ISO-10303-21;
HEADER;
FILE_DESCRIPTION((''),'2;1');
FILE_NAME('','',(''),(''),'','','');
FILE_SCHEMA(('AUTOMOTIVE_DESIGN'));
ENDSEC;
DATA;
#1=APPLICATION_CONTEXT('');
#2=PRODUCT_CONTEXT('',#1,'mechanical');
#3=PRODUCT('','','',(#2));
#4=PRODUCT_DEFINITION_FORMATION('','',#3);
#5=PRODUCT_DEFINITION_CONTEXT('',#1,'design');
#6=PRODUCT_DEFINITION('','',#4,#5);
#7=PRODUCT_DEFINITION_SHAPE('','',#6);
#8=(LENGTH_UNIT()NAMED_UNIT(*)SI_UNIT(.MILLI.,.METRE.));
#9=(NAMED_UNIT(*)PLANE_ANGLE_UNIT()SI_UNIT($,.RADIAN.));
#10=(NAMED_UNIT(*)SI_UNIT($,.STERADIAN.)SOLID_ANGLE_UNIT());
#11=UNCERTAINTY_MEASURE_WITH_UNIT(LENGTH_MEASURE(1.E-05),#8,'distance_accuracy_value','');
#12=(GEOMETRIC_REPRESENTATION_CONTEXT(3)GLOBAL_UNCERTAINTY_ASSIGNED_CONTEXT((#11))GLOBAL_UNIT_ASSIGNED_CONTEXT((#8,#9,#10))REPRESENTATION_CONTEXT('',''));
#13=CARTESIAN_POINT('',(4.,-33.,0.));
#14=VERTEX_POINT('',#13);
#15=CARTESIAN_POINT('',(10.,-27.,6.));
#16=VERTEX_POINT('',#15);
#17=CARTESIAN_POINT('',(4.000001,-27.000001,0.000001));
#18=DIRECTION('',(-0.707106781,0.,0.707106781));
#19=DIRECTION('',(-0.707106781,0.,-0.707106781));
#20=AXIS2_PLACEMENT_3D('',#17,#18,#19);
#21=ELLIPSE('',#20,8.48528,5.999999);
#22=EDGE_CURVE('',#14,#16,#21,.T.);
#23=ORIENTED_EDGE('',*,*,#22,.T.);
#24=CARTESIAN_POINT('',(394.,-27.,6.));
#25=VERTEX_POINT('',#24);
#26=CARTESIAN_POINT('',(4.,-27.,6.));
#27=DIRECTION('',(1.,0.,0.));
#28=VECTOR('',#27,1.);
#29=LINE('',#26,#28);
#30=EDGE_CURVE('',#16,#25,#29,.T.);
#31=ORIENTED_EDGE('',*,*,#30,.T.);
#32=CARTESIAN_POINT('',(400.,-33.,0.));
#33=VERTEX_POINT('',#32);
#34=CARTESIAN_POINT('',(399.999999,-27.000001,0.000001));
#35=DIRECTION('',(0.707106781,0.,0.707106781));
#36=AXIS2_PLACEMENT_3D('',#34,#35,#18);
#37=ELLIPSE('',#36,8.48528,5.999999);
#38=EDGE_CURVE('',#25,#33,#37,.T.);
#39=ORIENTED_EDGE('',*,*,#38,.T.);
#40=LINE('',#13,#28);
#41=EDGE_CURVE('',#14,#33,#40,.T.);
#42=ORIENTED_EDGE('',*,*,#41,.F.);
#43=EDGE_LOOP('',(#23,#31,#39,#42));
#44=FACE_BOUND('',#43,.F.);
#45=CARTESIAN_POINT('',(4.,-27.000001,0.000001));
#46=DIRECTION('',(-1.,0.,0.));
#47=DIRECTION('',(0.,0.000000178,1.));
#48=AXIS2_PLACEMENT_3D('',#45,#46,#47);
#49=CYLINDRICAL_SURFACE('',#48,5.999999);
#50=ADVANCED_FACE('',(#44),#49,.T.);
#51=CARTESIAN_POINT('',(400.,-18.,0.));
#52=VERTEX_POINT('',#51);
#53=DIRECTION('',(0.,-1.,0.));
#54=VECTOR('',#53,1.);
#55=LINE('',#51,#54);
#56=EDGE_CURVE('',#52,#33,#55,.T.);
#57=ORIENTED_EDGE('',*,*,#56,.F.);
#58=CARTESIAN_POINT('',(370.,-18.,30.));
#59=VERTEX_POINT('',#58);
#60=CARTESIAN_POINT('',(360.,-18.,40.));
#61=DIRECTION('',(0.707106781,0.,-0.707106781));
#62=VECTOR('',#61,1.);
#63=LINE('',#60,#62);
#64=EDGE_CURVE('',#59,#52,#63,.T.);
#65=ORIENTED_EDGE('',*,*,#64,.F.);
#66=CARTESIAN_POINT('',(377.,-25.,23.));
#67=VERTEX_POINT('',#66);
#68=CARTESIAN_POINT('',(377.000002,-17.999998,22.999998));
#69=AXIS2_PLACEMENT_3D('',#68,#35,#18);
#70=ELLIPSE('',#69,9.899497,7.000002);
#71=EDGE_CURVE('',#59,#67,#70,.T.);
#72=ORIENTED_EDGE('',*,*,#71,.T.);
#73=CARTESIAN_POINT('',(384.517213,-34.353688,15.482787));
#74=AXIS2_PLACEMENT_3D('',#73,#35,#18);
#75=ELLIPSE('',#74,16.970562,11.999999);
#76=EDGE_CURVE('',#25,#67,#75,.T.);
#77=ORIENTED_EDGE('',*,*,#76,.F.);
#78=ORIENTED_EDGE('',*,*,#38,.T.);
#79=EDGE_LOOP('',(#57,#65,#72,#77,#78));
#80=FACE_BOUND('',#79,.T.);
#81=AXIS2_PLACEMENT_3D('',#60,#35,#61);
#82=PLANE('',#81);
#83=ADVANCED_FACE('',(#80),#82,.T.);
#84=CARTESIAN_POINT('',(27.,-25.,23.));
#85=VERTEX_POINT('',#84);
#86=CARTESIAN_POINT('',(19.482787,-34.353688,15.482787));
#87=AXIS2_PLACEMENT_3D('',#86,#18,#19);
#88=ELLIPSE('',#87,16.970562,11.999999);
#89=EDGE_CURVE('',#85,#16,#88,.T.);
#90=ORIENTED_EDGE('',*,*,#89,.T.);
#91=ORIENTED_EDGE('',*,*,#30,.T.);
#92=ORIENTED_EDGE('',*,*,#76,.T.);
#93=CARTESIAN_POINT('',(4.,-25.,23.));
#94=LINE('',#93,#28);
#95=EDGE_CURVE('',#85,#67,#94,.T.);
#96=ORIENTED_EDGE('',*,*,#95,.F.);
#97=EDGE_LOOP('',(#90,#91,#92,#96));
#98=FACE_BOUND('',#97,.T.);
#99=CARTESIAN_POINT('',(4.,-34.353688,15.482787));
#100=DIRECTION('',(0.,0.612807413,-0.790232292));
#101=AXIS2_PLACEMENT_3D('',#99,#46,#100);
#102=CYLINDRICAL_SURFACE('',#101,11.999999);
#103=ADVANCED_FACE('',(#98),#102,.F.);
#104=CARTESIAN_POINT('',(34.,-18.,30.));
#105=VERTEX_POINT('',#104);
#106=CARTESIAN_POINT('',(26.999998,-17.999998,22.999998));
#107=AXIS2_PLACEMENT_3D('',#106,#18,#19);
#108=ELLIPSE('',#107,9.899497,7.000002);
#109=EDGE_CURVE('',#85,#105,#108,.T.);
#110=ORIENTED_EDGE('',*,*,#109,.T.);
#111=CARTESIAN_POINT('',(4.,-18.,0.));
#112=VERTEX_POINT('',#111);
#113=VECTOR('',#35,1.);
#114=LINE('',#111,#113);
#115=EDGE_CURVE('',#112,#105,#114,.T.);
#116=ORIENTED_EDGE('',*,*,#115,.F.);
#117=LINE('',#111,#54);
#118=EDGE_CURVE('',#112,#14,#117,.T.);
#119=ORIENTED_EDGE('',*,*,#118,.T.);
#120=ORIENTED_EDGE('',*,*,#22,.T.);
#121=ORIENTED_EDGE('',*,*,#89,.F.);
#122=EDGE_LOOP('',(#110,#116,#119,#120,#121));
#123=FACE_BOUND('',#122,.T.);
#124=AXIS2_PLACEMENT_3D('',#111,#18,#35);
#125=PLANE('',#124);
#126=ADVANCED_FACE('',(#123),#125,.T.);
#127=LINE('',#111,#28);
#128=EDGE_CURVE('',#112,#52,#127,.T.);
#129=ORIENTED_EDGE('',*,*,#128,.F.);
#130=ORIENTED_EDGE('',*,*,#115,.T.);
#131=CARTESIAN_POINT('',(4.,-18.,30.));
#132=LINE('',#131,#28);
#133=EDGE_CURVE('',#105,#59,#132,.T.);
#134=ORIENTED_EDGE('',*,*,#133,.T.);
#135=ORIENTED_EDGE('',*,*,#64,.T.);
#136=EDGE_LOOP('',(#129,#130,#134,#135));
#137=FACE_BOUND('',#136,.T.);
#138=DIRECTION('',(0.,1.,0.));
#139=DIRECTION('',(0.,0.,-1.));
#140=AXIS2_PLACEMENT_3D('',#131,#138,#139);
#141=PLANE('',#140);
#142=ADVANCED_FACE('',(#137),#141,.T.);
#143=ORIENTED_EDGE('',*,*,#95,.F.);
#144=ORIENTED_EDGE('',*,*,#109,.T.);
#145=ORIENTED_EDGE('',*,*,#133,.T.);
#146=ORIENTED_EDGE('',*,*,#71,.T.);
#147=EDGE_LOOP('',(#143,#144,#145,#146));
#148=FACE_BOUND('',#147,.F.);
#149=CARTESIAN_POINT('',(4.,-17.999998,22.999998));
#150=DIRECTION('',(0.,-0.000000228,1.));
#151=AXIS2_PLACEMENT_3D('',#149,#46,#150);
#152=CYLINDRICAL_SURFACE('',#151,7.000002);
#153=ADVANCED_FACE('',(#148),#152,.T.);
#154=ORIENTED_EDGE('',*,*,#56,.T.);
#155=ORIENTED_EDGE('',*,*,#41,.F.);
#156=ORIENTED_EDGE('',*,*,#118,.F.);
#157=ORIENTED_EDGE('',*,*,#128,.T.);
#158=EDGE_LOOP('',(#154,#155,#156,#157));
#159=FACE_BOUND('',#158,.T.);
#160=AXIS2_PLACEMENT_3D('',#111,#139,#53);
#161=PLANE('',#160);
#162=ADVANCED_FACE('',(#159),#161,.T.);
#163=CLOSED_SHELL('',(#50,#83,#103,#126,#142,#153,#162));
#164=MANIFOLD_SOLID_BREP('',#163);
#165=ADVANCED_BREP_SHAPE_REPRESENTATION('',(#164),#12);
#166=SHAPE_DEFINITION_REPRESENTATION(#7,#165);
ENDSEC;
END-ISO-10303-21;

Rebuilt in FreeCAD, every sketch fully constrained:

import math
import FreeCAD as App
import Part
import Sketcher


def add_polygon(sketch, points):
    """Adds a closed chain of lines whose ends are joined by coincident constraints."""
    first, n = sketch.GeometryCount, len(points)
    for a, b in zip(points, points[1:] + points[:1]):
        sketch.addGeometry(Part.LineSegment(App.Vector(*a, 0), App.Vector(*b, 0)), False)
    for i in range(n):
        sketch.addConstraint(Sketcher.Constraint("Coincident", first + i, 2, first + (i + 1) % n, 1))

doc = App.newDocument("Part")
body = doc.addObject("PartDesign::Body", "Body")

# Sketch on XZ plane
sketch1 = doc.addObject("Sketcher::SketchObject", "Sketch")
body.addObject(sketch1)
sketch1.AttachmentSupport = (doc.XZ_Plane, [""])
sketch1.MapMode = "FlatFace"
sketch1.AttachmentOffset = App.Placement(App.Vector(0, 0, 18), App.Rotation())
add_polygon(sketch1, [(360, 40), (400, 0), (400, 40)])  # lines 0-2
sketch1.addConstraint([
    Sketcher.Constraint("Vertical", 1),
    Sketcher.Constraint("Horizontal", 2),
    Sketcher.Constraint("PointOnObject", 0, 2, -1),
    Sketcher.Constraint("Equal", 2, 1),
    Sketcher.Constraint("DistanceX", 2, 2, 2, 1, 40.0),
    Sketcher.Constraint("DistanceX", -1, 1, 0, 2, 400.0),
])
pad1 = doc.addObject("PartDesign::Pad", "Pad")
body.addObject(pad1)
pad1.Profile = sketch1
pad1.Length = 40
body2 = doc.addObject("PartDesign::Body", "Body001")

# Sketch on XZ plane
sketch2 = doc.addObject("Sketcher::SketchObject", "Sketch001")
body2.addObject(sketch2)
sketch2.AttachmentSupport = (doc.getObject("XZ_Plane001"), [""])
sketch2.MapMode = "FlatFace"
sketch2.AttachmentOffset = App.Placement(App.Vector(0, 0, 18), App.Rotation())
add_polygon(sketch2, [(4, 0), (44, 40), (4, 40)])  # lines 0-2
sketch2.addConstraint([
    Sketcher.Constraint("Horizontal", 1),
    Sketcher.Constraint("Vertical", 2),
    Sketcher.Constraint("PointOnObject", 2, 2, -1),
    Sketcher.Constraint("Equal", 1, 2),
    Sketcher.Constraint("DistanceX", 1, 2, 1, 1, 40.0),
    Sketcher.Constraint("DistanceX", -1, 1, 0, 2, 44.0),
])
pad2 = doc.addObject("PartDesign::Pad", "Pad001")
body2.addObject(pad2)
pad2.Profile = sketch2
pad2.Length = 40
body3 = doc.addObject("PartDesign::Body", "Body002")

# Sketch on YZ plane
sketch3 = doc.addObject("Sketcher::SketchObject", "Sketch002")
body3.addObject(sketch3)
sketch3.AttachmentSupport = (doc.getObject("YZ_Plane002"), [""])
sketch3.MapMode = "FlatFace"
sketch3.AttachmentOffset = App.Placement(App.Vector(0, 0, 4), App.Rotation())
sketch3.addGeometry([
    Part.LineSegment(App.Vector(-18, 0, 0), App.Vector(-18, 30, 0)),  # 0
    Part.ArcOfCircle(Part.Circle(App.Vector(-18, 23, 0), App.Vector(0, 0, 1), 7), math.radians(90), math.radians(180)),  # 1
    Part.ArcOfCircle(Part.Circle(App.Vector(-34, 15, 0), App.Vector(0, 0, 1), 12), math.radians(-52), math.radians(39)),  # 2
    Part.ArcOfCircle(Part.Circle(App.Vector(-27, 0, 0), App.Vector(0, 0, 1), 6), math.radians(90), math.radians(180)),  # 3
    Part.LineSegment(App.Vector(-33, 0, 0), App.Vector(-18, 0, 0)),  # 4
], False)
sketch3.addConstraint([
    Sketcher.Constraint("Coincident", 0, 2, 1, 1),
    Sketcher.Constraint("Coincident", 1, 2, 2, 2),
    Sketcher.Constraint("Coincident", 2, 1, 3, 1),
    Sketcher.Constraint("Coincident", 3, 2, 4, 1),
    Sketcher.Constraint("Coincident", 4, 2, 0, 1),
    Sketcher.Constraint("Vertical", 0),
    Sketcher.Constraint("Horizontal", 4),
    Sketcher.Constraint("PointOnObject", 3, 3, -1),
    Sketcher.Constraint("PointOnObject", 3, 2, -1),
    Sketcher.Constraint("Vertical", 1, 3, 0, 2),
    Sketcher.Constraint("Vertical", 3, 3, 2, 1),
    Sketcher.Constraint("Radius", 1, 7.000002),
    Sketcher.Constraint("Radius", 2, 11.999999),
    Sketcher.Constraint("Radius", 3, 5.999999),
    Sketcher.Constraint("DistanceX", 4, 1, 4, 2, 15.0),
    Sketcher.Constraint("DistanceY", 0, 1, 0, 2, 30.0),
    Sketcher.Constraint("DistanceX", 1, 3, -1, 1, 17.999998),
    Sketcher.Constraint("DistanceY", -1, 1, 1, 2, 23.0),
])
pad3 = doc.addObject("PartDesign::Pad", "Pad002")
body3.addObject(pad3)
pad3.Profile = sketch3
pad3.Length = 396
doc.recompute()

boolean = doc.addObject("PartDesign::Boolean", "Boolean")
body3.addObject(boolean)
boolean.Type = "Cut"
boolean.addObjects([body2])
doc.recompute()

boolean2 = doc.addObject("PartDesign::Boolean", "Boolean001")
body3.addObject(boolean2)
boolean2.Type = "Cut"
boolean2.addObjects([body])

doc.recompute()
